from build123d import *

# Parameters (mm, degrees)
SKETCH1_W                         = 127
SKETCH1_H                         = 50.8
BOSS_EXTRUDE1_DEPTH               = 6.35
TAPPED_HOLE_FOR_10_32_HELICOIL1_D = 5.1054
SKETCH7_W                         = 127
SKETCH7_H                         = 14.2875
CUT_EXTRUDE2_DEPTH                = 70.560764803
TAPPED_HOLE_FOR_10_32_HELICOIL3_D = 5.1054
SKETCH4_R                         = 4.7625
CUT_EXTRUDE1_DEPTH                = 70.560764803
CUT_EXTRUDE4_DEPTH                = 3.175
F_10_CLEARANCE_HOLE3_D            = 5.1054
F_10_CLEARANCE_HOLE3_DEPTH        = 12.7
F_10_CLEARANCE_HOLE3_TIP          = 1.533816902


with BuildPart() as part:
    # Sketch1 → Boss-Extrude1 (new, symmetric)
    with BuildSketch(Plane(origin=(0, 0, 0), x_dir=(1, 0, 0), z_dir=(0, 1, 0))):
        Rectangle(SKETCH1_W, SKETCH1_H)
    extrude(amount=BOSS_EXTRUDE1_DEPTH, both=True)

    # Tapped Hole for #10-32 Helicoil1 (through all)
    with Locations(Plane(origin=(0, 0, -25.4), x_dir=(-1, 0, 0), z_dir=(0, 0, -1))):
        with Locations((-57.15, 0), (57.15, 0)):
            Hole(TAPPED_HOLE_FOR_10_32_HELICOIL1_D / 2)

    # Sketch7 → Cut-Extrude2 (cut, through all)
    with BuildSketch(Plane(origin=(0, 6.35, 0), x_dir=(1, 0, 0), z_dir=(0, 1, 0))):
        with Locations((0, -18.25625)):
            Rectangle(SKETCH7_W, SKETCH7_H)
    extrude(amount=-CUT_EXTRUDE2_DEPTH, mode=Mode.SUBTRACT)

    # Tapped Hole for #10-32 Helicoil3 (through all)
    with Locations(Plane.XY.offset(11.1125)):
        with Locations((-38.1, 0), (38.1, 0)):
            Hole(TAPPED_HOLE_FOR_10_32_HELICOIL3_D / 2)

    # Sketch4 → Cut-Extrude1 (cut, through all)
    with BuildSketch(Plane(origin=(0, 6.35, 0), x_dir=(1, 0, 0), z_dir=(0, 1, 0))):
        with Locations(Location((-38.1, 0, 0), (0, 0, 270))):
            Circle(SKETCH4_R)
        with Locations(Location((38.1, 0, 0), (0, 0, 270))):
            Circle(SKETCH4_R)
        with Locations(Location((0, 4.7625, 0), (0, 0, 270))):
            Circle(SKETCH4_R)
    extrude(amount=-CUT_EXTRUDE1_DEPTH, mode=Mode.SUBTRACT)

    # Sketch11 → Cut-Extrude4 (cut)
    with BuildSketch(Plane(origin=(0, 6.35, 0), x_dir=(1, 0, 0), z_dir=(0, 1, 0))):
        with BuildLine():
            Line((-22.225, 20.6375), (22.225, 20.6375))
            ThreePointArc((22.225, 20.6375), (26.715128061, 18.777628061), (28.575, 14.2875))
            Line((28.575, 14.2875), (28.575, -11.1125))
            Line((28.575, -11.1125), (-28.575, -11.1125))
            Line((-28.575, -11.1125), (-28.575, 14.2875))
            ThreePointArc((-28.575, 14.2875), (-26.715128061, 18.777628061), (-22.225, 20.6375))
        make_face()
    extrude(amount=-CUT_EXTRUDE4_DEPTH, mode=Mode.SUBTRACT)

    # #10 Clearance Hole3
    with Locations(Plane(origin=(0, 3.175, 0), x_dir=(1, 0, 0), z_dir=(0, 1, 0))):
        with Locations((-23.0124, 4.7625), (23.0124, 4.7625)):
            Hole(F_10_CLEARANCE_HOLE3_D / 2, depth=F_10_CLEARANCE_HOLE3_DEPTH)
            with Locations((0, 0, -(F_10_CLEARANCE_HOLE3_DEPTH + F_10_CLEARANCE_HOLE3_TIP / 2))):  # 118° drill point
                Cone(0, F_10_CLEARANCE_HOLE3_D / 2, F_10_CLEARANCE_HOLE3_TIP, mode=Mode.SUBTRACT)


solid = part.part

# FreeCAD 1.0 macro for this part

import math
import FreeCAD as App
import Part
import Sketcher
from FreeCAD import Vector
Q = App.Units.Quantity

doc = App.newDocument("Part")
body = doc.addObject("PartDesign::Body", "Body")

# Sketch on XZ plane
sketch1 = doc.addObject("Sketcher::SketchObject", "Sketch")
body.addObject(sketch1)
sketch1.AttachmentSupport = (doc.XZ_Plane, [""])
sketch1.MapMode = "FlatFace"
sketch1.addGeometry(Part.LineSegment(Vector(-64, -25, 0), Vector(-64, 25, 0)), False)
sketch1.addGeometry(Part.LineSegment(Vector(-64, 25, 0), Vector(64, 25, 0)), False)
sketch1.addGeometry(Part.LineSegment(Vector(64, 25, 0), Vector(64, -25, 0)), False)
sketch1.addGeometry(Part.LineSegment(Vector(64, -25, 0), Vector(-64, -25, 0)), False)
sketch1.addConstraint(Sketcher.Constraint("Coincident", 0, 2, 1, 1))
sketch1.addConstraint(Sketcher.Constraint("Coincident", 1, 2, 2, 1))
sketch1.addConstraint(Sketcher.Constraint("Coincident", 2, 2, 3, 1))
sketch1.addConstraint(Sketcher.Constraint("Coincident", 3, 2, 0, 1))
sketch1.addConstraint(Sketcher.Constraint("Vertical", 0))
sketch1.addConstraint(Sketcher.Constraint("Horizontal", 1))
sketch1.addConstraint(Sketcher.Constraint("Vertical", 2))
sketch1.addConstraint(Sketcher.Constraint("Horizontal", 3))
sketch1.addConstraint(Sketcher.Constraint("Symmetric", 0, 2, 2, 2, -1, 1))
sketch1.addConstraint(Sketcher.Constraint("DistanceX", 1, 1, 1, 2, Q("5 in")))
sketch1.addConstraint(Sketcher.Constraint("DistanceY", 0, 1, 0, 2, Q("2 in")))
pad1 = doc.addObject("PartDesign::Pad", "Pad")
body.addObject(pad1)
pad1.Profile = sketch1
pad1.Length = Q("0.5 in")
pad1.Midplane = True

# Sketch on XY plane
sketch2 = doc.addObject("Sketcher::SketchObject", "Sketch001")
body.addObject(sketch2)
sketch2.AttachmentSupport = (doc.XY_Plane, [""])
sketch2.MapMode = "FlatFace"
sketch2.AttachmentOffset = App.Placement(Vector(0, 0, -1 * 25.4), App.Rotation())
sketch2.addGeometry(Part.Circle(Vector(57.1, 0, 0), Vector(0, 0, 1), 2.6), False)
sketch2.addGeometry(Part.Circle(Vector(-57.1, 0, 0), Vector(0, 0, 1), 2.6), False)
sketch2.addConstraint(Sketcher.Constraint("Equal", 0, 1))
sketch2.addConstraint(Sketcher.Constraint("Symmetric", 0, 3, 1, 3, -1, 1))
sketch2.addConstraint(Sketcher.Constraint("PointOnObject", 0, 3, -1))
sketch2.addConstraint(Sketcher.Constraint("Diameter", 0, Q("0.201 in")))
sketch2.addConstraint(Sketcher.Constraint("DistanceX", 1, 3, 0, 3, Q("4.5 in")))
doc.recompute()
hole = doc.addObject("PartDesign::Hole", "Hole")
body.addObject(hole)
hole.Profile = sketch2
hole.ThreadType = "None"
hole.Diameter = Q("0.201 in")
hole.DepthType = "ThroughAll"
hole.Reversed = True

# Sketch on XZ plane
sketch3 = doc.addObject("Sketcher::SketchObject", "Sketch002")
body.addObject(sketch3)
sketch3.AttachmentSupport = (doc.XZ_Plane, [""])
sketch3.MapMode = "FlatFace"
sketch3.AttachmentOffset = App.Placement(Vector(0, 0, -0.25 * 25.4), App.Rotation())
sketch3.addGeometry(Part.LineSegment(Vector(-64, 11, 0), Vector(-64, 25, 0)), False)
sketch3.addGeometry(Part.LineSegment(Vector(-64, 25, 0), Vector(64, 25, 0)), False)
sketch3.addGeometry(Part.LineSegment(Vector(64, 25, 0), Vector(64, 11, 0)), False)
sketch3.addGeometry(Part.LineSegment(Vector(64, 11, 0), Vector(-64, 11, 0)), False)
sketch3.addConstraint(Sketcher.Constraint("Coincident", 0, 2, 1, 1))
sketch3.addConstraint(Sketcher.Constraint("Coincident", 1, 2, 2, 1))
sketch3.addConstraint(Sketcher.Constraint("Coincident", 2, 2, 3, 1))
sketch3.addConstraint(Sketcher.Constraint("Coincident", 3, 2, 0, 1))
sketch3.addConstraint(Sketcher.Constraint("Vertical", 0))
sketch3.addConstraint(Sketcher.Constraint("Horizontal", 1))
sketch3.addConstraint(Sketcher.Constraint("Vertical", 2))
sketch3.addConstraint(Sketcher.Constraint("Horizontal", 3))
sketch3.addConstraint(Sketcher.Constraint("DistanceX", 1, 1, 1, 2, Q("5 in")))
sketch3.addConstraint(Sketcher.Constraint("DistanceY", -1, 1, 0, 2, Q("1 in")))
sketch3.addConstraint(Sketcher.Constraint("DistanceX", 0, 2, -1, 1, Q("2.5 in")))
sketch3.addConstraint(Sketcher.Constraint("DistanceY", 0, 1, 0, 2, Q("0.5625 in")))
pocket1 = doc.addObject("PartDesign::Pocket", "Pocket")
body.addObject(pocket1)
pocket1.Profile = sketch3
pocket1.Type = "ThroughAll"
pocket1.Reversed = True

# Sketch on XY plane
sketch4 = doc.addObject("Sketcher::SketchObject", "Sketch003")
body.addObject(sketch4)
sketch4.AttachmentSupport = (doc.XY_Plane, [""])
sketch4.MapMode = "FlatFace"
sketch4.AttachmentOffset = App.Placement(Vector(0, 0, 0.4375 * 25.4), App.Rotation())
sketch4.addGeometry(Part.Circle(Vector(-38.1, 0, 0), Vector(0, 0, 1), 2.6), False)
sketch4.addGeometry(Part.Circle(Vector(38.1, 0, 0), Vector(0, 0, 1), 2.6), False)
sketch4.addConstraint(Sketcher.Constraint("Equal", 0, 1))
sketch4.addConstraint(Sketcher.Constraint("Symmetric", 0, 3, 1, 3, -1, 1))
sketch4.addConstraint(Sketcher.Constraint("PointOnObject", 0, 3, -1))
sketch4.addConstraint(Sketcher.Constraint("Diameter", 0, Q("0.201 in")))
sketch4.addConstraint(Sketcher.Constraint("DistanceX", 0, 3, 1, 3, Q("3 in")))
doc.recompute()
hole2 = doc.addObject("PartDesign::Hole", "Hole001")
body.addObject(hole2)
hole2.Profile = sketch4
hole2.ThreadType = "None"
hole2.Diameter = Q("0.201 in")
hole2.DepthType = "ThroughAll"

# Sketch on XZ plane
sketch5 = doc.addObject("Sketcher::SketchObject", "Sketch004")
body.addObject(sketch5)
sketch5.AttachmentSupport = (doc.XZ_Plane, [""])
sketch5.MapMode = "FlatFace"
sketch5.AttachmentOffset = App.Placement(Vector(0, 0, -0.25 * 25.4), App.Rotation())
sketch5.addGeometry(Part.Circle(Vector(-38.1, 0, 0), Vector(0, 0, 1), 4.8), False)
sketch5.addGeometry(Part.Circle(Vector(38.1, 0, 0), Vector(0, 0, 1), 4.8), False)
sketch5.addGeometry(Part.Circle(Vector(0, -4.8, 0), Vector(0, 0, 1), 4.8), False)
sketch5.addConstraint(Sketcher.Constraint("Equal", 0, 1))
sketch5.addConstraint(Sketcher.Constraint("Equal", 1, 2))
sketch5.addConstraint(Sketcher.Constraint("Symmetric", 0, 3, 1, 3, -1, 1))
sketch5.addConstraint(Sketcher.Constraint("PointOnObject", 0, 3, -1))
sketch5.addConstraint(Sketcher.Constraint("PointOnObject", 2, 3, -2))
sketch5.addConstraint(Sketcher.Constraint("Diameter", 0, Q("0.375 in")))
sketch5.addConstraint(Sketcher.Constraint("DistanceX", 0, 3, 1, 3, Q("3 in")))
sketch5.addConstraint(Sketcher.Constraint("DistanceY", 2, 3, -1, 1, Q("0.1875 in")))
pocket2 = doc.addObject("PartDesign::Pocket", "Pocket001")
body.addObject(pocket2)
pocket2.Profile = sketch5
pocket2.Type = "ThroughAll"
pocket2.Reversed = True

# Sketch on XZ plane
sketch6 = doc.addObject("Sketcher::SketchObject", "Sketch005")
body.addObject(sketch6)
sketch6.AttachmentSupport = (doc.XZ_Plane, [""])
sketch6.MapMode = "FlatFace"
sketch6.AttachmentOffset = App.Placement(Vector(0, 0, -0.25 * 25.4), App.Rotation())
sketch6.addGeometry(Part.LineSegment(Vector(22, -21, 0), Vector(-22, -21, 0)), False)
sketch6.addGeometry(Part.ArcOfCircle(Part.Circle(Vector(-22, -14, 0), Vector(0, 0, 1), 6), math.radians(180), math.radians(270)), False)
sketch6.addGeometry(Part.LineSegment(Vector(-29, -14, 0), Vector(-29, 11, 0)), False)
sketch6.addGeometry(Part.LineSegment(Vector(-29, 11, 0), Vector(29, 11, 0)), False)
sketch6.addGeometry(Part.LineSegment(Vector(29, 11, 0), Vector(29, -14, 0)), False)
sketch6.addGeometry(Part.ArcOfCircle(Part.Circle(Vector(22, -14, 0), Vector(0, 0, 1), 6), math.radians(-90), math.radians(0)), False)
sketch6.addConstraint(Sketcher.Constraint("Tangent", 0, 2, 1, 2))
sketch6.addConstraint(Sketcher.Constraint("Tangent", 1, 1, 2, 1))
sketch6.addConstraint(Sketcher.Constraint("Coincident", 2, 2, 3, 1))
sketch6.addConstraint(Sketcher.Constraint("Coincident", 3, 2, 4, 1))
sketch6.addConstraint(Sketcher.Constraint("Tangent", 4, 2, 5, 2))
sketch6.addConstraint(Sketcher.Constraint("Tangent", 5, 1, 0, 1))
sketch6.addConstraint(Sketcher.Constraint("Horizontal", 0))
sketch6.addConstraint(Sketcher.Constraint("Vertical", 2))
sketch6.addConstraint(Sketcher.Constraint("Horizontal", 3))
sketch6.addConstraint(Sketcher.Constraint("Vertical", 4))
sketch6.addConstraint(Sketcher.Constraint("Equal", 1, 5))
sketch6.addConstraint(Sketcher.Constraint("DistanceY", 2, 1, 2, 2, Q("1 in")))
sketch6.addConstraint(Sketcher.Constraint("Radius", 1, Q("0.25 in")))
sketch6.addConstraint(Sketcher.Constraint("DistanceX", 1, 1, 5, 3, Q("2 in")))
sketch6.addConstraint(Sketcher.Constraint("DistanceX", 1, 3, -1, 1, Q("0.875 in")))
sketch6.addConstraint(Sketcher.Constraint("DistanceY", 1, 3, -1, 1, Q("0.5625 in")))
pocket3 = doc.addObject("PartDesign::Pocket", "Pocket002")
body.addObject(pocket3)
pocket3.Profile = sketch6
pocket3.Length = Q("0.125 in")
pocket3.Reversed = True

# Sketch on XZ plane
sketch7 = doc.addObject("Sketcher::SketchObject", "Sketch006")
body.addObject(sketch7)
sketch7.AttachmentSupport = (doc.XZ_Plane, [""])
sketch7.MapMode = "FlatFace"
sketch7.AttachmentOffset = App.Placement(Vector(0, 0, -0.125 * 25.4), App.Rotation())
sketch7.addGeometry(Part.Circle(Vector(-23, -4.8, 0), Vector(0, 0, 1), 2.6), False)
sketch7.addGeometry(Part.Circle(Vector(23, -4.8, 0), Vector(0, 0, 1), 2.6), False)
sketch7.addConstraint(Sketcher.Constraint("Equal", 0, 1))
sketch7.addConstraint(Sketcher.Constraint("Symmetric", 0, 3, 1, 3, -2))
sketch7.addConstraint(Sketcher.Constraint("Diameter", 0, Q("0.201 in")))
sketch7.addConstraint(Sketcher.Constraint("DistanceX", 0, 3, -1, 1, Q("0.906 in")))
sketch7.addConstraint(Sketcher.Constraint("DistanceY", 0, 3, -1, 1, Q("0.1875 in")))
doc.recompute()
hole3 = doc.addObject("PartDesign::Hole", "Hole002")
body.addObject(hole3)
hole3.Profile = sketch7
hole3.ThreadType = "None"
hole3.Diameter = Q("0.201 in")
hole3.DepthType = "Dimension"
hole3.Depth = Q("0.5 in")
hole3.DrillPoint = "Angled"
hole3.DrillPointAngle = 118
hole3.Reversed = True

doc.recompute()
